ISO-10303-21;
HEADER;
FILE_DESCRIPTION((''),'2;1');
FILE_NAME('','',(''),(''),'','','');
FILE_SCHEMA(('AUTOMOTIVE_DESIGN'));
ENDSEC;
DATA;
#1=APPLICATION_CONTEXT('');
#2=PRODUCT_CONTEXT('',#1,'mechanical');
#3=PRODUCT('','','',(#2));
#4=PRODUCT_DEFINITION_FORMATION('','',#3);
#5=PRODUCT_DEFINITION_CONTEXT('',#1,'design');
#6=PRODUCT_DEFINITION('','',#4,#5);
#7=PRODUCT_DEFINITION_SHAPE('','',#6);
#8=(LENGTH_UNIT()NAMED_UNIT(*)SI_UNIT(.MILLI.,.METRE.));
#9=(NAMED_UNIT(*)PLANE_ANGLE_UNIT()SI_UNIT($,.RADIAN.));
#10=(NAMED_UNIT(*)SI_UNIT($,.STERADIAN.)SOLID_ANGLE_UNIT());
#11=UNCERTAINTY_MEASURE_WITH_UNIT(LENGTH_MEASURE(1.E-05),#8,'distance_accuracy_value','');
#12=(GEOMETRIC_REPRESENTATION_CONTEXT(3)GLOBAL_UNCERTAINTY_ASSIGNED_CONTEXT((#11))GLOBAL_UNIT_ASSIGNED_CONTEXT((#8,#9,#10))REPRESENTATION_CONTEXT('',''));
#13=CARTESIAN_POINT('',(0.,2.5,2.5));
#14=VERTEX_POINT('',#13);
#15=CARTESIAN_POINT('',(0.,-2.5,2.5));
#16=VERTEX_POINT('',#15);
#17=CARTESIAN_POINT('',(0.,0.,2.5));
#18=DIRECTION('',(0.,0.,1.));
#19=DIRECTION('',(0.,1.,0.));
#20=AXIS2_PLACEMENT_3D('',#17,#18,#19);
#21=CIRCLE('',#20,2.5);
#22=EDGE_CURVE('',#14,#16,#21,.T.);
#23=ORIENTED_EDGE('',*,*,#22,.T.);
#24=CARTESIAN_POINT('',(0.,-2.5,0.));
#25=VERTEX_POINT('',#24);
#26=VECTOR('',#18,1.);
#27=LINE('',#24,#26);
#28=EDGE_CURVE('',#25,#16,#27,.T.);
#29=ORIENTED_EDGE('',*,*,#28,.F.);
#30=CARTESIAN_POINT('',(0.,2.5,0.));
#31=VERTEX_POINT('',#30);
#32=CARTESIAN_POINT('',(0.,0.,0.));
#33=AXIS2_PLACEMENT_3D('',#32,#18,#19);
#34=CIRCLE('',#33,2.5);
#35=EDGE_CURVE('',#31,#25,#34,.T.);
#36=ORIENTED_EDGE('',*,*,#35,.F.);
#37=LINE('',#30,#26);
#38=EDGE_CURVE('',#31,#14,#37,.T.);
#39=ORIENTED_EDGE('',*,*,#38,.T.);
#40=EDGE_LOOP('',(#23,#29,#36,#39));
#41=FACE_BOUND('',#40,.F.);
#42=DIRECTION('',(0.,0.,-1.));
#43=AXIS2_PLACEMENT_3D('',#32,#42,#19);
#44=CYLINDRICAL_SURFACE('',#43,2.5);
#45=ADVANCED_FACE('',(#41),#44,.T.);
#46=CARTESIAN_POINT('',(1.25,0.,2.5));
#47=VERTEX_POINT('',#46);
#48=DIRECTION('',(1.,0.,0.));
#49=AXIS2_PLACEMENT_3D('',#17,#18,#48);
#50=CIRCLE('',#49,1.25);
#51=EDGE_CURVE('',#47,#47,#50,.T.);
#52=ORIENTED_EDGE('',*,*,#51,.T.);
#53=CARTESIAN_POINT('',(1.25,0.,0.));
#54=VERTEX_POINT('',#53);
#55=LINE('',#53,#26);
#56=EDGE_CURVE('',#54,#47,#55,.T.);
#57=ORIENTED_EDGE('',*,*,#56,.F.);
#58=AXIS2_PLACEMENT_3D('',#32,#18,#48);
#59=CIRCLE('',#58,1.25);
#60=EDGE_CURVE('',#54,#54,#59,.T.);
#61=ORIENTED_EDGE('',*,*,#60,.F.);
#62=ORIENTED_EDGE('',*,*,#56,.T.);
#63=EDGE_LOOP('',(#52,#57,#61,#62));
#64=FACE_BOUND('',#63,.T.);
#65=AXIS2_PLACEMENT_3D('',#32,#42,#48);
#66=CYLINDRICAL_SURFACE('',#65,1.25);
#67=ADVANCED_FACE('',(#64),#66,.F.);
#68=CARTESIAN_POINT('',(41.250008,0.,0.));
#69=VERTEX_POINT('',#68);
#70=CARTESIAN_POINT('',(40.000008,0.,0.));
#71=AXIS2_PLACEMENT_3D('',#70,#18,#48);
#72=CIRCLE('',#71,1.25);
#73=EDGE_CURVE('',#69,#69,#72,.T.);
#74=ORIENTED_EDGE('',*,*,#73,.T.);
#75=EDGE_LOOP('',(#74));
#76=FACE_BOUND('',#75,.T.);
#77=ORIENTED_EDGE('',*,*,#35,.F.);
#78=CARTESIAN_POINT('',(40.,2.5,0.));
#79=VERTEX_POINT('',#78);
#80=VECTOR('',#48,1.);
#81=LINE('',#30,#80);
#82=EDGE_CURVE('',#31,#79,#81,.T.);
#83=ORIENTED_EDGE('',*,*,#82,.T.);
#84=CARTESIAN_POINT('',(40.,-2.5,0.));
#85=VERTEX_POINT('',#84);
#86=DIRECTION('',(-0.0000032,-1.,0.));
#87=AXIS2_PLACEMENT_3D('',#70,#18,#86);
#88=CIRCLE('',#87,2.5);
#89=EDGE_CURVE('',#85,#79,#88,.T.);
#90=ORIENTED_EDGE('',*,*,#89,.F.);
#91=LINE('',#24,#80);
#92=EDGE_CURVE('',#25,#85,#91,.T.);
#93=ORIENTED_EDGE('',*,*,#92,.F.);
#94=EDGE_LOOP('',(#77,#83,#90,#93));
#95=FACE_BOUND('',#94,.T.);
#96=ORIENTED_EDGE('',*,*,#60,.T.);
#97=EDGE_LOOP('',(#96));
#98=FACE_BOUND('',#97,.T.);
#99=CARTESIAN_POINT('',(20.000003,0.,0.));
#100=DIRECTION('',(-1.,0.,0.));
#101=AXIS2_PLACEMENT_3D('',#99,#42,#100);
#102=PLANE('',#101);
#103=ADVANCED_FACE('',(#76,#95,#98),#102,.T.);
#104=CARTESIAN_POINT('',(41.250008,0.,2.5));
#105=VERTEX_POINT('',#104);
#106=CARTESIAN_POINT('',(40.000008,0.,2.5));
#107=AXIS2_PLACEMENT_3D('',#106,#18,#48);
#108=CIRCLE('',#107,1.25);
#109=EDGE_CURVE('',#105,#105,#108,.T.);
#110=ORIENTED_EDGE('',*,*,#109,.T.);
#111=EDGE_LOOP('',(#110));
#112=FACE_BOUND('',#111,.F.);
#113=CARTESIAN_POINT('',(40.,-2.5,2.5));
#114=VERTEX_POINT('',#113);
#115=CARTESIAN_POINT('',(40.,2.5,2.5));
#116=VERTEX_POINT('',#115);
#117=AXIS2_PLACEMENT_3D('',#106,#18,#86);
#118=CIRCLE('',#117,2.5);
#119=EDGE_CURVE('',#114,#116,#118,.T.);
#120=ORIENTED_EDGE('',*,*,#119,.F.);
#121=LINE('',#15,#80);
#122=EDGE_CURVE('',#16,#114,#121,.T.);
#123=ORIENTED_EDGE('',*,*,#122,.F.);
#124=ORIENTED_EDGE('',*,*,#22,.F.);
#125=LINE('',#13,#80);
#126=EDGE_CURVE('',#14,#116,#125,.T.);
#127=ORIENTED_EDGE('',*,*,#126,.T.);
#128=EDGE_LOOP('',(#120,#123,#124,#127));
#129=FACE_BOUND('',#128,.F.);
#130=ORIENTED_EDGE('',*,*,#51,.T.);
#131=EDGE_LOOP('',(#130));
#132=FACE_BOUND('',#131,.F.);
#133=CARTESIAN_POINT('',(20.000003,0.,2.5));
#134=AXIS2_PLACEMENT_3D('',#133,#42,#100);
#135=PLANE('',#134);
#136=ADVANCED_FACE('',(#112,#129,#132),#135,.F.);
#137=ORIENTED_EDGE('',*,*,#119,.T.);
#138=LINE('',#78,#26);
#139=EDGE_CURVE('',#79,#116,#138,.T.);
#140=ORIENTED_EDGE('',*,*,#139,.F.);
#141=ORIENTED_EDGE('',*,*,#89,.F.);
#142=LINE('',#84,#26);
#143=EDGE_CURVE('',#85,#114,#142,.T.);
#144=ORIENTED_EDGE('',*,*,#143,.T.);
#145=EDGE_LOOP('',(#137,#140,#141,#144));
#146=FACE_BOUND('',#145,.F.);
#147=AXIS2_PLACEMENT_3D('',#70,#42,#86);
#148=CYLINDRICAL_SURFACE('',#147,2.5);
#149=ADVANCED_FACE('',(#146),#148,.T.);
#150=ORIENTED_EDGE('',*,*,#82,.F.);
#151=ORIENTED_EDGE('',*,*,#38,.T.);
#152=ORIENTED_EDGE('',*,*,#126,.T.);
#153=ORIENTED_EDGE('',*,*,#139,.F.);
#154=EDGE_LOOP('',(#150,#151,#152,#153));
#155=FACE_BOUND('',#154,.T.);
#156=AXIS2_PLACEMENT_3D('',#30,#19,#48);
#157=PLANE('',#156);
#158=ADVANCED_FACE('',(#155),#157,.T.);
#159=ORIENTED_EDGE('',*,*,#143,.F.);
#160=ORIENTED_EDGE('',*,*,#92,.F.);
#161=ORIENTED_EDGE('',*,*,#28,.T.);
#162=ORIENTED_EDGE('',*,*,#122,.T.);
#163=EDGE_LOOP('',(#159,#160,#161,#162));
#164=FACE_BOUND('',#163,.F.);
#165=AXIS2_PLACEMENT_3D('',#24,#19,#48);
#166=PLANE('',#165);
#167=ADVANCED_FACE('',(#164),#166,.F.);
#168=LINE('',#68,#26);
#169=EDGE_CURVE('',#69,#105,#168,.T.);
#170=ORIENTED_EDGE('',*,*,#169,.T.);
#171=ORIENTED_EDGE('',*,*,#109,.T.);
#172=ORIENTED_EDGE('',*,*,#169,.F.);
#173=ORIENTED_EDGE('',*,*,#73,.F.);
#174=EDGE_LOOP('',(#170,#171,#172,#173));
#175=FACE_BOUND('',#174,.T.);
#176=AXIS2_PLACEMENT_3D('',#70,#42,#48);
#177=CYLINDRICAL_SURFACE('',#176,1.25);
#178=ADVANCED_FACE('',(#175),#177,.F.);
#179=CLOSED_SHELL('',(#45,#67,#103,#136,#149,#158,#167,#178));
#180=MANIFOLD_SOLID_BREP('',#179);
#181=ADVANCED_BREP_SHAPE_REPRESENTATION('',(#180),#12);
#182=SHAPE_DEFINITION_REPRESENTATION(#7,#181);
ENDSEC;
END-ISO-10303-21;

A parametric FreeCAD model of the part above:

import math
import FreeCAD as App
import Part
import Sketcher
from FreeCAD import Vector
Q = App.Units.Quantity

doc = App.newDocument("Part")
body = doc.addObject("PartDesign::Body", "Body")

# Sketch on XY plane
sketch1 = doc.addObject("Sketcher::SketchObject", "Sketch")
body.addObject(sketch1)
sketch1.AttachmentSupport = (doc.XY_Plane, [""])
sketch1.MapMode = "FlatFace"
sketch1.addGeometry(Part.LineSegment(Vector(40, 2.5, 0), Vector(0, 2.5, 0)), False)
sketch1.addGeometry(Part.ArcOfCircle(Part.Circle(Vector(0, 0, 0), Vector(0, 0, 1), 2.5), math.radians(90), math.radians(270)), False)
sketch1.addGeometry(Part.LineSegment(Vector(0, -2.5, 0), Vector(40, -2.5, 0)), False)
sketch1.addGeometry(Part.ArcOfCircle(Part.Circle(Vector(40, 0, 0), Vector(0, 0, 1), 2.5), math.radians(-90), math.radians(90)), False)
sketch1.addGeometry(Part.Circle(Vector(40, 0, 0), Vector(0, 0, 1), 1.2), False)
sketch1.addGeometry(Part.Circle(Vector(0, 0, 0), Vector(0, 0, 1), 1.2), False)
sketch1.addConstraint(Sketcher.Constraint("Tangent", 0, 2, 1, 1))
sketch1.addConstraint(Sketcher.Constraint("Tangent", 1, 2, 2, 1))
sketch1.addConstraint(Sketcher.Constraint("Coincident", 2, 2, 3, 1))
sketch1.addConstraint(Sketcher.Constraint("Coincident", 3, 2, 0, 1))
sketch1.addConstraint(Sketcher.Constraint("Horizontal", 0))
sketch1.addConstraint(Sketcher.Constraint("Horizontal", 2))
sketch1.addConstraint(Sketcher.Constraint("Coincident", 1, 3, -1, 1))
sketch1.addConstraint(Sketcher.Constraint("Coincident", 5, 3, -1, 1))
sketch1.addConstraint(Sketcher.Constraint("Coincident", 4, 3, 3, 3))
sketch1.addConstraint(Sketcher.Constraint("Equal", 4, 5))
sketch1.addConstraint(Sketcher.Constraint("Vertical", 2, 2, 3, 2))
sketch1.addConstraint(Sketcher.Constraint("Diameter", 4, Q("2.5 mm")))
sketch1.addConstraint(Sketcher.Constraint("Radius", 1, Q("2.5 mm")))
sketch1.addConstraint(Sketcher.Constraint("DistanceX", 0, 2, 0, 1, Q("40 mm")))
sketch1.addConstraint(Sketcher.Constraint("DistanceX", -1, 1, 3, 3, Q("40.000008 mm")))
pad1 = doc.addObject("PartDesign::Pad", "Pad")
body.addObject(pad1)
pad1.Profile = sketch1
pad1.Length = 2.5

doc.recompute()
